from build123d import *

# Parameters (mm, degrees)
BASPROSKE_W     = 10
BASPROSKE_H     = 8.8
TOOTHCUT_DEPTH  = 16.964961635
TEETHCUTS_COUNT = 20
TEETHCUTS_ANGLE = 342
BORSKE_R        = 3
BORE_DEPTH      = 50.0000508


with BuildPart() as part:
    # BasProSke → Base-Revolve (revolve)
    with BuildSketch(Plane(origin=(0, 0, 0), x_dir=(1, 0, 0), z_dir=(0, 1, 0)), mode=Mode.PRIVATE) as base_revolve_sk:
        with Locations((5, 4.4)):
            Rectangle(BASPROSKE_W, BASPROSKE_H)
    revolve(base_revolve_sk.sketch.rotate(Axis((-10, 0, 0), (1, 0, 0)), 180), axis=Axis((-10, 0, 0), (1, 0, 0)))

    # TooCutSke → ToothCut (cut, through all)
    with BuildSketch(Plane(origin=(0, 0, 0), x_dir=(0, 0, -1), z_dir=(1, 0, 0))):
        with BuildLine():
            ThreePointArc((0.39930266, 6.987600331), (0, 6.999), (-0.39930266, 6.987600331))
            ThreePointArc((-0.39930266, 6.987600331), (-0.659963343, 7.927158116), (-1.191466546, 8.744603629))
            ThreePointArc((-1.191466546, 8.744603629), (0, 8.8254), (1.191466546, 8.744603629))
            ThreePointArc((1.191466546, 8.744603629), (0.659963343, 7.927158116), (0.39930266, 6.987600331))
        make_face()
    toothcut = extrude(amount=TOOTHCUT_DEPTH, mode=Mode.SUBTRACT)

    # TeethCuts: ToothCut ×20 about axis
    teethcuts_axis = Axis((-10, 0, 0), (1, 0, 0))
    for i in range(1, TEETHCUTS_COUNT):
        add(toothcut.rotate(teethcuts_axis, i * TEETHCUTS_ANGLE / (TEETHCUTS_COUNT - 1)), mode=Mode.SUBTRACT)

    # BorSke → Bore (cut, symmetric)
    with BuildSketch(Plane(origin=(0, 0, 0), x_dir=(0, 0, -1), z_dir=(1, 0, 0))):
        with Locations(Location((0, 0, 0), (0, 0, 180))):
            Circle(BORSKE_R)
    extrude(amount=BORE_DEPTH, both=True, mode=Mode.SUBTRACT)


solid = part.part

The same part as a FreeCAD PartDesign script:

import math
import FreeCAD as App
import Part
import Sketcher

doc = App.newDocument("Part")
params = doc.addObject("Spreadsheet::Sheet", "Params")
for row, (alias, value) in enumerate([
    ("sketch1_width", "10 mm"),
    ("sketch1_height", "8.8 mm"),
    ("revolution_angle", "360 deg"),
    ("sketch2_radius", "3.2 mm"),
    ("sketch3_diameter", "6 mm"),
    ("pocket2_length", "100.000102 mm"),
], start=1):
    params.set(f"A{row}", alias)
    params.set(f"B{row}", "=" + value)
    params.setAlias(f"B{row}", alias)

body = doc.addObject("PartDesign::Body", "Body")

sketch1 = body.newObject("Sketcher::SketchObject", "Sketch")
sketch1.AttachmentSupport = (doc.getObject("XZ_Plane"), [""])
sketch1.MapMode = "FlatFace"
sketch1.addGeometry([
    Part.LineSegment(App.Vector(0, -9, 0), App.Vector(0, 0, 0)),
    Part.LineSegment(App.Vector(0, 0, 0), App.Vector(10, 0, 0)),
    Part.LineSegment(App.Vector(10, 0, 0), App.Vector(10, -9, 0)),
    Part.LineSegment(App.Vector(10, -9, 0), App.Vector(0, -9, 0)),
], False)
sketch1.addConstraint([
    Sketcher.Constraint("Coincident", 0, 2, 1, 1),
    Sketcher.Constraint("Coincident", 1, 2, 2, 1),
    Sketcher.Constraint("Coincident", 2, 2, 3, 1),
    Sketcher.Constraint("Coincident", 3, 2, 0, 1),
    Sketcher.Constraint("Vertical", 0),
    Sketcher.Constraint("Horizontal", 1),
    Sketcher.Constraint("Vertical", 2),
    Sketcher.Constraint("Horizontal", 3),
    Sketcher.Constraint("Coincident", 0, 2, -1, 1),
    Sketcher.Constraint("DistanceX", 1, 1, 1, 2, 10.0),
    Sketcher.Constraint("DistanceY", 0, 1, 0, 2, 8.8),
])
sketch1.setExpression("Constraints[9]", "Params.sketch1_width")
sketch1.setExpression("Constraints[10]", "Params.sketch1_height")
revolution = body.newObject("PartDesign::Revolution", "Revolution")
revolution.Profile = sketch1
revolution.ReferenceAxis = (sketch1, ["H_Axis"])
revolution.setExpression("Angle", "Params.revolution_angle")

sketch2 = body.newObject("Sketcher::SketchObject", "Sketch001")
sketch2.AttachmentSupport = (doc.getObject("YZ_Plane"), [""])
sketch2.MapMode = "FlatFace"
sketch2.addGeometry([
    Part.ArcOfCircle(Part.Circle(App.Vector(0, 0, 0), App.Vector(0, 0, 1), 7), math.radians(-3.27), math.radians(3.27)),
    Part.ArcOfCircle(Part.Circle(App.Vector(6.6, -3.6, 0), App.Vector(0, 0, 1), 3.2), math.radians(48), math.radians(83)),
    Part.ArcOfCircle(Part.Circle(App.Vector(0, 0, 0), App.Vector(0, 0, 1), 8.8), math.radians(-7.76), math.radians(7.76)),
    Part.ArcOfCircle(Part.Circle(App.Vector(6.6, 3.6, 0), App.Vector(0, 0, 1), 3.2), math.radians(-83), math.radians(-48)),
], False)
sketch2.addConstraint([
    Sketcher.Constraint("Coincident", 0, 1, 1, 2),
    Sketcher.Constraint("Coincident", 1, 1, 2, 1),
    Sketcher.Constraint("Coincident", 2, 2, 3, 2),
    Sketcher.Constraint("Coincident", 3, 1, 0, 2),
    Sketcher.Constraint("Coincident", 0, 3, -1, 1),
    Sketcher.Constraint("Coincident", 2, 3, -1, 1),
    Sketcher.Constraint("Equal", 1, 3),
    Sketcher.Constraint("Symmetric", 1, 3, 3, 3, -1),
    Sketcher.Constraint("Radius", 1, 3.2),
    Sketcher.Constraint("Radius", 0, 6.999),
    Sketcher.Constraint("Radius", 2, 8.8254),
    Sketcher.Constraint("DistanceX", -1, 1, 0, 1, 6.9876),
    Sketcher.Constraint("DistanceX", 1, 3, 1, 1, 2.1327),
])
sketch2.setExpression("Constraints[8]", "Params.sketch2_radius")
pocket1 = body.newObject("PartDesign::Pocket", "Pocket")
pocket1.Profile = sketch2
pocket1.Type = "ThroughAll"
pocket1.Reversed = True
doc.recompute()

polarpattern = body.newObject("PartDesign::PolarPattern", "PolarPattern")
polarpattern.Originals = [pocket1]
polarpattern.Axis = (doc.getObject("X_Axis"), [""])
polarpattern.Angle = 360
polarpattern.Occurrences = 20
body.Tip = polarpattern

sketch3 = body.newObject("Sketcher::SketchObject", "Sketch002")
sketch3.AttachmentSupport = (doc.getObject("YZ_Plane"), [""])
sketch3.MapMode = "FlatFace"
sketch3.addGeometry(Part.Circle(App.Vector(0, 0, 0), App.Vector(0, 0, 1), 3), False)
sketch3.addConstraint([
    Sketcher.Constraint("Coincident", 0, 3, -1, 1),
    Sketcher.Constraint("Diameter", 0, 6.0),
])
sketch3.setExpression("Constraints[1]", "Params.sketch3_diameter")
pocket2 = body.newObject("PartDesign::Pocket", "Pocket001")
pocket2.Profile = sketch3
pocket2.setExpression("Length", "Params.pocket2_length")
pocket2.Midplane = True

doc.recompute()
